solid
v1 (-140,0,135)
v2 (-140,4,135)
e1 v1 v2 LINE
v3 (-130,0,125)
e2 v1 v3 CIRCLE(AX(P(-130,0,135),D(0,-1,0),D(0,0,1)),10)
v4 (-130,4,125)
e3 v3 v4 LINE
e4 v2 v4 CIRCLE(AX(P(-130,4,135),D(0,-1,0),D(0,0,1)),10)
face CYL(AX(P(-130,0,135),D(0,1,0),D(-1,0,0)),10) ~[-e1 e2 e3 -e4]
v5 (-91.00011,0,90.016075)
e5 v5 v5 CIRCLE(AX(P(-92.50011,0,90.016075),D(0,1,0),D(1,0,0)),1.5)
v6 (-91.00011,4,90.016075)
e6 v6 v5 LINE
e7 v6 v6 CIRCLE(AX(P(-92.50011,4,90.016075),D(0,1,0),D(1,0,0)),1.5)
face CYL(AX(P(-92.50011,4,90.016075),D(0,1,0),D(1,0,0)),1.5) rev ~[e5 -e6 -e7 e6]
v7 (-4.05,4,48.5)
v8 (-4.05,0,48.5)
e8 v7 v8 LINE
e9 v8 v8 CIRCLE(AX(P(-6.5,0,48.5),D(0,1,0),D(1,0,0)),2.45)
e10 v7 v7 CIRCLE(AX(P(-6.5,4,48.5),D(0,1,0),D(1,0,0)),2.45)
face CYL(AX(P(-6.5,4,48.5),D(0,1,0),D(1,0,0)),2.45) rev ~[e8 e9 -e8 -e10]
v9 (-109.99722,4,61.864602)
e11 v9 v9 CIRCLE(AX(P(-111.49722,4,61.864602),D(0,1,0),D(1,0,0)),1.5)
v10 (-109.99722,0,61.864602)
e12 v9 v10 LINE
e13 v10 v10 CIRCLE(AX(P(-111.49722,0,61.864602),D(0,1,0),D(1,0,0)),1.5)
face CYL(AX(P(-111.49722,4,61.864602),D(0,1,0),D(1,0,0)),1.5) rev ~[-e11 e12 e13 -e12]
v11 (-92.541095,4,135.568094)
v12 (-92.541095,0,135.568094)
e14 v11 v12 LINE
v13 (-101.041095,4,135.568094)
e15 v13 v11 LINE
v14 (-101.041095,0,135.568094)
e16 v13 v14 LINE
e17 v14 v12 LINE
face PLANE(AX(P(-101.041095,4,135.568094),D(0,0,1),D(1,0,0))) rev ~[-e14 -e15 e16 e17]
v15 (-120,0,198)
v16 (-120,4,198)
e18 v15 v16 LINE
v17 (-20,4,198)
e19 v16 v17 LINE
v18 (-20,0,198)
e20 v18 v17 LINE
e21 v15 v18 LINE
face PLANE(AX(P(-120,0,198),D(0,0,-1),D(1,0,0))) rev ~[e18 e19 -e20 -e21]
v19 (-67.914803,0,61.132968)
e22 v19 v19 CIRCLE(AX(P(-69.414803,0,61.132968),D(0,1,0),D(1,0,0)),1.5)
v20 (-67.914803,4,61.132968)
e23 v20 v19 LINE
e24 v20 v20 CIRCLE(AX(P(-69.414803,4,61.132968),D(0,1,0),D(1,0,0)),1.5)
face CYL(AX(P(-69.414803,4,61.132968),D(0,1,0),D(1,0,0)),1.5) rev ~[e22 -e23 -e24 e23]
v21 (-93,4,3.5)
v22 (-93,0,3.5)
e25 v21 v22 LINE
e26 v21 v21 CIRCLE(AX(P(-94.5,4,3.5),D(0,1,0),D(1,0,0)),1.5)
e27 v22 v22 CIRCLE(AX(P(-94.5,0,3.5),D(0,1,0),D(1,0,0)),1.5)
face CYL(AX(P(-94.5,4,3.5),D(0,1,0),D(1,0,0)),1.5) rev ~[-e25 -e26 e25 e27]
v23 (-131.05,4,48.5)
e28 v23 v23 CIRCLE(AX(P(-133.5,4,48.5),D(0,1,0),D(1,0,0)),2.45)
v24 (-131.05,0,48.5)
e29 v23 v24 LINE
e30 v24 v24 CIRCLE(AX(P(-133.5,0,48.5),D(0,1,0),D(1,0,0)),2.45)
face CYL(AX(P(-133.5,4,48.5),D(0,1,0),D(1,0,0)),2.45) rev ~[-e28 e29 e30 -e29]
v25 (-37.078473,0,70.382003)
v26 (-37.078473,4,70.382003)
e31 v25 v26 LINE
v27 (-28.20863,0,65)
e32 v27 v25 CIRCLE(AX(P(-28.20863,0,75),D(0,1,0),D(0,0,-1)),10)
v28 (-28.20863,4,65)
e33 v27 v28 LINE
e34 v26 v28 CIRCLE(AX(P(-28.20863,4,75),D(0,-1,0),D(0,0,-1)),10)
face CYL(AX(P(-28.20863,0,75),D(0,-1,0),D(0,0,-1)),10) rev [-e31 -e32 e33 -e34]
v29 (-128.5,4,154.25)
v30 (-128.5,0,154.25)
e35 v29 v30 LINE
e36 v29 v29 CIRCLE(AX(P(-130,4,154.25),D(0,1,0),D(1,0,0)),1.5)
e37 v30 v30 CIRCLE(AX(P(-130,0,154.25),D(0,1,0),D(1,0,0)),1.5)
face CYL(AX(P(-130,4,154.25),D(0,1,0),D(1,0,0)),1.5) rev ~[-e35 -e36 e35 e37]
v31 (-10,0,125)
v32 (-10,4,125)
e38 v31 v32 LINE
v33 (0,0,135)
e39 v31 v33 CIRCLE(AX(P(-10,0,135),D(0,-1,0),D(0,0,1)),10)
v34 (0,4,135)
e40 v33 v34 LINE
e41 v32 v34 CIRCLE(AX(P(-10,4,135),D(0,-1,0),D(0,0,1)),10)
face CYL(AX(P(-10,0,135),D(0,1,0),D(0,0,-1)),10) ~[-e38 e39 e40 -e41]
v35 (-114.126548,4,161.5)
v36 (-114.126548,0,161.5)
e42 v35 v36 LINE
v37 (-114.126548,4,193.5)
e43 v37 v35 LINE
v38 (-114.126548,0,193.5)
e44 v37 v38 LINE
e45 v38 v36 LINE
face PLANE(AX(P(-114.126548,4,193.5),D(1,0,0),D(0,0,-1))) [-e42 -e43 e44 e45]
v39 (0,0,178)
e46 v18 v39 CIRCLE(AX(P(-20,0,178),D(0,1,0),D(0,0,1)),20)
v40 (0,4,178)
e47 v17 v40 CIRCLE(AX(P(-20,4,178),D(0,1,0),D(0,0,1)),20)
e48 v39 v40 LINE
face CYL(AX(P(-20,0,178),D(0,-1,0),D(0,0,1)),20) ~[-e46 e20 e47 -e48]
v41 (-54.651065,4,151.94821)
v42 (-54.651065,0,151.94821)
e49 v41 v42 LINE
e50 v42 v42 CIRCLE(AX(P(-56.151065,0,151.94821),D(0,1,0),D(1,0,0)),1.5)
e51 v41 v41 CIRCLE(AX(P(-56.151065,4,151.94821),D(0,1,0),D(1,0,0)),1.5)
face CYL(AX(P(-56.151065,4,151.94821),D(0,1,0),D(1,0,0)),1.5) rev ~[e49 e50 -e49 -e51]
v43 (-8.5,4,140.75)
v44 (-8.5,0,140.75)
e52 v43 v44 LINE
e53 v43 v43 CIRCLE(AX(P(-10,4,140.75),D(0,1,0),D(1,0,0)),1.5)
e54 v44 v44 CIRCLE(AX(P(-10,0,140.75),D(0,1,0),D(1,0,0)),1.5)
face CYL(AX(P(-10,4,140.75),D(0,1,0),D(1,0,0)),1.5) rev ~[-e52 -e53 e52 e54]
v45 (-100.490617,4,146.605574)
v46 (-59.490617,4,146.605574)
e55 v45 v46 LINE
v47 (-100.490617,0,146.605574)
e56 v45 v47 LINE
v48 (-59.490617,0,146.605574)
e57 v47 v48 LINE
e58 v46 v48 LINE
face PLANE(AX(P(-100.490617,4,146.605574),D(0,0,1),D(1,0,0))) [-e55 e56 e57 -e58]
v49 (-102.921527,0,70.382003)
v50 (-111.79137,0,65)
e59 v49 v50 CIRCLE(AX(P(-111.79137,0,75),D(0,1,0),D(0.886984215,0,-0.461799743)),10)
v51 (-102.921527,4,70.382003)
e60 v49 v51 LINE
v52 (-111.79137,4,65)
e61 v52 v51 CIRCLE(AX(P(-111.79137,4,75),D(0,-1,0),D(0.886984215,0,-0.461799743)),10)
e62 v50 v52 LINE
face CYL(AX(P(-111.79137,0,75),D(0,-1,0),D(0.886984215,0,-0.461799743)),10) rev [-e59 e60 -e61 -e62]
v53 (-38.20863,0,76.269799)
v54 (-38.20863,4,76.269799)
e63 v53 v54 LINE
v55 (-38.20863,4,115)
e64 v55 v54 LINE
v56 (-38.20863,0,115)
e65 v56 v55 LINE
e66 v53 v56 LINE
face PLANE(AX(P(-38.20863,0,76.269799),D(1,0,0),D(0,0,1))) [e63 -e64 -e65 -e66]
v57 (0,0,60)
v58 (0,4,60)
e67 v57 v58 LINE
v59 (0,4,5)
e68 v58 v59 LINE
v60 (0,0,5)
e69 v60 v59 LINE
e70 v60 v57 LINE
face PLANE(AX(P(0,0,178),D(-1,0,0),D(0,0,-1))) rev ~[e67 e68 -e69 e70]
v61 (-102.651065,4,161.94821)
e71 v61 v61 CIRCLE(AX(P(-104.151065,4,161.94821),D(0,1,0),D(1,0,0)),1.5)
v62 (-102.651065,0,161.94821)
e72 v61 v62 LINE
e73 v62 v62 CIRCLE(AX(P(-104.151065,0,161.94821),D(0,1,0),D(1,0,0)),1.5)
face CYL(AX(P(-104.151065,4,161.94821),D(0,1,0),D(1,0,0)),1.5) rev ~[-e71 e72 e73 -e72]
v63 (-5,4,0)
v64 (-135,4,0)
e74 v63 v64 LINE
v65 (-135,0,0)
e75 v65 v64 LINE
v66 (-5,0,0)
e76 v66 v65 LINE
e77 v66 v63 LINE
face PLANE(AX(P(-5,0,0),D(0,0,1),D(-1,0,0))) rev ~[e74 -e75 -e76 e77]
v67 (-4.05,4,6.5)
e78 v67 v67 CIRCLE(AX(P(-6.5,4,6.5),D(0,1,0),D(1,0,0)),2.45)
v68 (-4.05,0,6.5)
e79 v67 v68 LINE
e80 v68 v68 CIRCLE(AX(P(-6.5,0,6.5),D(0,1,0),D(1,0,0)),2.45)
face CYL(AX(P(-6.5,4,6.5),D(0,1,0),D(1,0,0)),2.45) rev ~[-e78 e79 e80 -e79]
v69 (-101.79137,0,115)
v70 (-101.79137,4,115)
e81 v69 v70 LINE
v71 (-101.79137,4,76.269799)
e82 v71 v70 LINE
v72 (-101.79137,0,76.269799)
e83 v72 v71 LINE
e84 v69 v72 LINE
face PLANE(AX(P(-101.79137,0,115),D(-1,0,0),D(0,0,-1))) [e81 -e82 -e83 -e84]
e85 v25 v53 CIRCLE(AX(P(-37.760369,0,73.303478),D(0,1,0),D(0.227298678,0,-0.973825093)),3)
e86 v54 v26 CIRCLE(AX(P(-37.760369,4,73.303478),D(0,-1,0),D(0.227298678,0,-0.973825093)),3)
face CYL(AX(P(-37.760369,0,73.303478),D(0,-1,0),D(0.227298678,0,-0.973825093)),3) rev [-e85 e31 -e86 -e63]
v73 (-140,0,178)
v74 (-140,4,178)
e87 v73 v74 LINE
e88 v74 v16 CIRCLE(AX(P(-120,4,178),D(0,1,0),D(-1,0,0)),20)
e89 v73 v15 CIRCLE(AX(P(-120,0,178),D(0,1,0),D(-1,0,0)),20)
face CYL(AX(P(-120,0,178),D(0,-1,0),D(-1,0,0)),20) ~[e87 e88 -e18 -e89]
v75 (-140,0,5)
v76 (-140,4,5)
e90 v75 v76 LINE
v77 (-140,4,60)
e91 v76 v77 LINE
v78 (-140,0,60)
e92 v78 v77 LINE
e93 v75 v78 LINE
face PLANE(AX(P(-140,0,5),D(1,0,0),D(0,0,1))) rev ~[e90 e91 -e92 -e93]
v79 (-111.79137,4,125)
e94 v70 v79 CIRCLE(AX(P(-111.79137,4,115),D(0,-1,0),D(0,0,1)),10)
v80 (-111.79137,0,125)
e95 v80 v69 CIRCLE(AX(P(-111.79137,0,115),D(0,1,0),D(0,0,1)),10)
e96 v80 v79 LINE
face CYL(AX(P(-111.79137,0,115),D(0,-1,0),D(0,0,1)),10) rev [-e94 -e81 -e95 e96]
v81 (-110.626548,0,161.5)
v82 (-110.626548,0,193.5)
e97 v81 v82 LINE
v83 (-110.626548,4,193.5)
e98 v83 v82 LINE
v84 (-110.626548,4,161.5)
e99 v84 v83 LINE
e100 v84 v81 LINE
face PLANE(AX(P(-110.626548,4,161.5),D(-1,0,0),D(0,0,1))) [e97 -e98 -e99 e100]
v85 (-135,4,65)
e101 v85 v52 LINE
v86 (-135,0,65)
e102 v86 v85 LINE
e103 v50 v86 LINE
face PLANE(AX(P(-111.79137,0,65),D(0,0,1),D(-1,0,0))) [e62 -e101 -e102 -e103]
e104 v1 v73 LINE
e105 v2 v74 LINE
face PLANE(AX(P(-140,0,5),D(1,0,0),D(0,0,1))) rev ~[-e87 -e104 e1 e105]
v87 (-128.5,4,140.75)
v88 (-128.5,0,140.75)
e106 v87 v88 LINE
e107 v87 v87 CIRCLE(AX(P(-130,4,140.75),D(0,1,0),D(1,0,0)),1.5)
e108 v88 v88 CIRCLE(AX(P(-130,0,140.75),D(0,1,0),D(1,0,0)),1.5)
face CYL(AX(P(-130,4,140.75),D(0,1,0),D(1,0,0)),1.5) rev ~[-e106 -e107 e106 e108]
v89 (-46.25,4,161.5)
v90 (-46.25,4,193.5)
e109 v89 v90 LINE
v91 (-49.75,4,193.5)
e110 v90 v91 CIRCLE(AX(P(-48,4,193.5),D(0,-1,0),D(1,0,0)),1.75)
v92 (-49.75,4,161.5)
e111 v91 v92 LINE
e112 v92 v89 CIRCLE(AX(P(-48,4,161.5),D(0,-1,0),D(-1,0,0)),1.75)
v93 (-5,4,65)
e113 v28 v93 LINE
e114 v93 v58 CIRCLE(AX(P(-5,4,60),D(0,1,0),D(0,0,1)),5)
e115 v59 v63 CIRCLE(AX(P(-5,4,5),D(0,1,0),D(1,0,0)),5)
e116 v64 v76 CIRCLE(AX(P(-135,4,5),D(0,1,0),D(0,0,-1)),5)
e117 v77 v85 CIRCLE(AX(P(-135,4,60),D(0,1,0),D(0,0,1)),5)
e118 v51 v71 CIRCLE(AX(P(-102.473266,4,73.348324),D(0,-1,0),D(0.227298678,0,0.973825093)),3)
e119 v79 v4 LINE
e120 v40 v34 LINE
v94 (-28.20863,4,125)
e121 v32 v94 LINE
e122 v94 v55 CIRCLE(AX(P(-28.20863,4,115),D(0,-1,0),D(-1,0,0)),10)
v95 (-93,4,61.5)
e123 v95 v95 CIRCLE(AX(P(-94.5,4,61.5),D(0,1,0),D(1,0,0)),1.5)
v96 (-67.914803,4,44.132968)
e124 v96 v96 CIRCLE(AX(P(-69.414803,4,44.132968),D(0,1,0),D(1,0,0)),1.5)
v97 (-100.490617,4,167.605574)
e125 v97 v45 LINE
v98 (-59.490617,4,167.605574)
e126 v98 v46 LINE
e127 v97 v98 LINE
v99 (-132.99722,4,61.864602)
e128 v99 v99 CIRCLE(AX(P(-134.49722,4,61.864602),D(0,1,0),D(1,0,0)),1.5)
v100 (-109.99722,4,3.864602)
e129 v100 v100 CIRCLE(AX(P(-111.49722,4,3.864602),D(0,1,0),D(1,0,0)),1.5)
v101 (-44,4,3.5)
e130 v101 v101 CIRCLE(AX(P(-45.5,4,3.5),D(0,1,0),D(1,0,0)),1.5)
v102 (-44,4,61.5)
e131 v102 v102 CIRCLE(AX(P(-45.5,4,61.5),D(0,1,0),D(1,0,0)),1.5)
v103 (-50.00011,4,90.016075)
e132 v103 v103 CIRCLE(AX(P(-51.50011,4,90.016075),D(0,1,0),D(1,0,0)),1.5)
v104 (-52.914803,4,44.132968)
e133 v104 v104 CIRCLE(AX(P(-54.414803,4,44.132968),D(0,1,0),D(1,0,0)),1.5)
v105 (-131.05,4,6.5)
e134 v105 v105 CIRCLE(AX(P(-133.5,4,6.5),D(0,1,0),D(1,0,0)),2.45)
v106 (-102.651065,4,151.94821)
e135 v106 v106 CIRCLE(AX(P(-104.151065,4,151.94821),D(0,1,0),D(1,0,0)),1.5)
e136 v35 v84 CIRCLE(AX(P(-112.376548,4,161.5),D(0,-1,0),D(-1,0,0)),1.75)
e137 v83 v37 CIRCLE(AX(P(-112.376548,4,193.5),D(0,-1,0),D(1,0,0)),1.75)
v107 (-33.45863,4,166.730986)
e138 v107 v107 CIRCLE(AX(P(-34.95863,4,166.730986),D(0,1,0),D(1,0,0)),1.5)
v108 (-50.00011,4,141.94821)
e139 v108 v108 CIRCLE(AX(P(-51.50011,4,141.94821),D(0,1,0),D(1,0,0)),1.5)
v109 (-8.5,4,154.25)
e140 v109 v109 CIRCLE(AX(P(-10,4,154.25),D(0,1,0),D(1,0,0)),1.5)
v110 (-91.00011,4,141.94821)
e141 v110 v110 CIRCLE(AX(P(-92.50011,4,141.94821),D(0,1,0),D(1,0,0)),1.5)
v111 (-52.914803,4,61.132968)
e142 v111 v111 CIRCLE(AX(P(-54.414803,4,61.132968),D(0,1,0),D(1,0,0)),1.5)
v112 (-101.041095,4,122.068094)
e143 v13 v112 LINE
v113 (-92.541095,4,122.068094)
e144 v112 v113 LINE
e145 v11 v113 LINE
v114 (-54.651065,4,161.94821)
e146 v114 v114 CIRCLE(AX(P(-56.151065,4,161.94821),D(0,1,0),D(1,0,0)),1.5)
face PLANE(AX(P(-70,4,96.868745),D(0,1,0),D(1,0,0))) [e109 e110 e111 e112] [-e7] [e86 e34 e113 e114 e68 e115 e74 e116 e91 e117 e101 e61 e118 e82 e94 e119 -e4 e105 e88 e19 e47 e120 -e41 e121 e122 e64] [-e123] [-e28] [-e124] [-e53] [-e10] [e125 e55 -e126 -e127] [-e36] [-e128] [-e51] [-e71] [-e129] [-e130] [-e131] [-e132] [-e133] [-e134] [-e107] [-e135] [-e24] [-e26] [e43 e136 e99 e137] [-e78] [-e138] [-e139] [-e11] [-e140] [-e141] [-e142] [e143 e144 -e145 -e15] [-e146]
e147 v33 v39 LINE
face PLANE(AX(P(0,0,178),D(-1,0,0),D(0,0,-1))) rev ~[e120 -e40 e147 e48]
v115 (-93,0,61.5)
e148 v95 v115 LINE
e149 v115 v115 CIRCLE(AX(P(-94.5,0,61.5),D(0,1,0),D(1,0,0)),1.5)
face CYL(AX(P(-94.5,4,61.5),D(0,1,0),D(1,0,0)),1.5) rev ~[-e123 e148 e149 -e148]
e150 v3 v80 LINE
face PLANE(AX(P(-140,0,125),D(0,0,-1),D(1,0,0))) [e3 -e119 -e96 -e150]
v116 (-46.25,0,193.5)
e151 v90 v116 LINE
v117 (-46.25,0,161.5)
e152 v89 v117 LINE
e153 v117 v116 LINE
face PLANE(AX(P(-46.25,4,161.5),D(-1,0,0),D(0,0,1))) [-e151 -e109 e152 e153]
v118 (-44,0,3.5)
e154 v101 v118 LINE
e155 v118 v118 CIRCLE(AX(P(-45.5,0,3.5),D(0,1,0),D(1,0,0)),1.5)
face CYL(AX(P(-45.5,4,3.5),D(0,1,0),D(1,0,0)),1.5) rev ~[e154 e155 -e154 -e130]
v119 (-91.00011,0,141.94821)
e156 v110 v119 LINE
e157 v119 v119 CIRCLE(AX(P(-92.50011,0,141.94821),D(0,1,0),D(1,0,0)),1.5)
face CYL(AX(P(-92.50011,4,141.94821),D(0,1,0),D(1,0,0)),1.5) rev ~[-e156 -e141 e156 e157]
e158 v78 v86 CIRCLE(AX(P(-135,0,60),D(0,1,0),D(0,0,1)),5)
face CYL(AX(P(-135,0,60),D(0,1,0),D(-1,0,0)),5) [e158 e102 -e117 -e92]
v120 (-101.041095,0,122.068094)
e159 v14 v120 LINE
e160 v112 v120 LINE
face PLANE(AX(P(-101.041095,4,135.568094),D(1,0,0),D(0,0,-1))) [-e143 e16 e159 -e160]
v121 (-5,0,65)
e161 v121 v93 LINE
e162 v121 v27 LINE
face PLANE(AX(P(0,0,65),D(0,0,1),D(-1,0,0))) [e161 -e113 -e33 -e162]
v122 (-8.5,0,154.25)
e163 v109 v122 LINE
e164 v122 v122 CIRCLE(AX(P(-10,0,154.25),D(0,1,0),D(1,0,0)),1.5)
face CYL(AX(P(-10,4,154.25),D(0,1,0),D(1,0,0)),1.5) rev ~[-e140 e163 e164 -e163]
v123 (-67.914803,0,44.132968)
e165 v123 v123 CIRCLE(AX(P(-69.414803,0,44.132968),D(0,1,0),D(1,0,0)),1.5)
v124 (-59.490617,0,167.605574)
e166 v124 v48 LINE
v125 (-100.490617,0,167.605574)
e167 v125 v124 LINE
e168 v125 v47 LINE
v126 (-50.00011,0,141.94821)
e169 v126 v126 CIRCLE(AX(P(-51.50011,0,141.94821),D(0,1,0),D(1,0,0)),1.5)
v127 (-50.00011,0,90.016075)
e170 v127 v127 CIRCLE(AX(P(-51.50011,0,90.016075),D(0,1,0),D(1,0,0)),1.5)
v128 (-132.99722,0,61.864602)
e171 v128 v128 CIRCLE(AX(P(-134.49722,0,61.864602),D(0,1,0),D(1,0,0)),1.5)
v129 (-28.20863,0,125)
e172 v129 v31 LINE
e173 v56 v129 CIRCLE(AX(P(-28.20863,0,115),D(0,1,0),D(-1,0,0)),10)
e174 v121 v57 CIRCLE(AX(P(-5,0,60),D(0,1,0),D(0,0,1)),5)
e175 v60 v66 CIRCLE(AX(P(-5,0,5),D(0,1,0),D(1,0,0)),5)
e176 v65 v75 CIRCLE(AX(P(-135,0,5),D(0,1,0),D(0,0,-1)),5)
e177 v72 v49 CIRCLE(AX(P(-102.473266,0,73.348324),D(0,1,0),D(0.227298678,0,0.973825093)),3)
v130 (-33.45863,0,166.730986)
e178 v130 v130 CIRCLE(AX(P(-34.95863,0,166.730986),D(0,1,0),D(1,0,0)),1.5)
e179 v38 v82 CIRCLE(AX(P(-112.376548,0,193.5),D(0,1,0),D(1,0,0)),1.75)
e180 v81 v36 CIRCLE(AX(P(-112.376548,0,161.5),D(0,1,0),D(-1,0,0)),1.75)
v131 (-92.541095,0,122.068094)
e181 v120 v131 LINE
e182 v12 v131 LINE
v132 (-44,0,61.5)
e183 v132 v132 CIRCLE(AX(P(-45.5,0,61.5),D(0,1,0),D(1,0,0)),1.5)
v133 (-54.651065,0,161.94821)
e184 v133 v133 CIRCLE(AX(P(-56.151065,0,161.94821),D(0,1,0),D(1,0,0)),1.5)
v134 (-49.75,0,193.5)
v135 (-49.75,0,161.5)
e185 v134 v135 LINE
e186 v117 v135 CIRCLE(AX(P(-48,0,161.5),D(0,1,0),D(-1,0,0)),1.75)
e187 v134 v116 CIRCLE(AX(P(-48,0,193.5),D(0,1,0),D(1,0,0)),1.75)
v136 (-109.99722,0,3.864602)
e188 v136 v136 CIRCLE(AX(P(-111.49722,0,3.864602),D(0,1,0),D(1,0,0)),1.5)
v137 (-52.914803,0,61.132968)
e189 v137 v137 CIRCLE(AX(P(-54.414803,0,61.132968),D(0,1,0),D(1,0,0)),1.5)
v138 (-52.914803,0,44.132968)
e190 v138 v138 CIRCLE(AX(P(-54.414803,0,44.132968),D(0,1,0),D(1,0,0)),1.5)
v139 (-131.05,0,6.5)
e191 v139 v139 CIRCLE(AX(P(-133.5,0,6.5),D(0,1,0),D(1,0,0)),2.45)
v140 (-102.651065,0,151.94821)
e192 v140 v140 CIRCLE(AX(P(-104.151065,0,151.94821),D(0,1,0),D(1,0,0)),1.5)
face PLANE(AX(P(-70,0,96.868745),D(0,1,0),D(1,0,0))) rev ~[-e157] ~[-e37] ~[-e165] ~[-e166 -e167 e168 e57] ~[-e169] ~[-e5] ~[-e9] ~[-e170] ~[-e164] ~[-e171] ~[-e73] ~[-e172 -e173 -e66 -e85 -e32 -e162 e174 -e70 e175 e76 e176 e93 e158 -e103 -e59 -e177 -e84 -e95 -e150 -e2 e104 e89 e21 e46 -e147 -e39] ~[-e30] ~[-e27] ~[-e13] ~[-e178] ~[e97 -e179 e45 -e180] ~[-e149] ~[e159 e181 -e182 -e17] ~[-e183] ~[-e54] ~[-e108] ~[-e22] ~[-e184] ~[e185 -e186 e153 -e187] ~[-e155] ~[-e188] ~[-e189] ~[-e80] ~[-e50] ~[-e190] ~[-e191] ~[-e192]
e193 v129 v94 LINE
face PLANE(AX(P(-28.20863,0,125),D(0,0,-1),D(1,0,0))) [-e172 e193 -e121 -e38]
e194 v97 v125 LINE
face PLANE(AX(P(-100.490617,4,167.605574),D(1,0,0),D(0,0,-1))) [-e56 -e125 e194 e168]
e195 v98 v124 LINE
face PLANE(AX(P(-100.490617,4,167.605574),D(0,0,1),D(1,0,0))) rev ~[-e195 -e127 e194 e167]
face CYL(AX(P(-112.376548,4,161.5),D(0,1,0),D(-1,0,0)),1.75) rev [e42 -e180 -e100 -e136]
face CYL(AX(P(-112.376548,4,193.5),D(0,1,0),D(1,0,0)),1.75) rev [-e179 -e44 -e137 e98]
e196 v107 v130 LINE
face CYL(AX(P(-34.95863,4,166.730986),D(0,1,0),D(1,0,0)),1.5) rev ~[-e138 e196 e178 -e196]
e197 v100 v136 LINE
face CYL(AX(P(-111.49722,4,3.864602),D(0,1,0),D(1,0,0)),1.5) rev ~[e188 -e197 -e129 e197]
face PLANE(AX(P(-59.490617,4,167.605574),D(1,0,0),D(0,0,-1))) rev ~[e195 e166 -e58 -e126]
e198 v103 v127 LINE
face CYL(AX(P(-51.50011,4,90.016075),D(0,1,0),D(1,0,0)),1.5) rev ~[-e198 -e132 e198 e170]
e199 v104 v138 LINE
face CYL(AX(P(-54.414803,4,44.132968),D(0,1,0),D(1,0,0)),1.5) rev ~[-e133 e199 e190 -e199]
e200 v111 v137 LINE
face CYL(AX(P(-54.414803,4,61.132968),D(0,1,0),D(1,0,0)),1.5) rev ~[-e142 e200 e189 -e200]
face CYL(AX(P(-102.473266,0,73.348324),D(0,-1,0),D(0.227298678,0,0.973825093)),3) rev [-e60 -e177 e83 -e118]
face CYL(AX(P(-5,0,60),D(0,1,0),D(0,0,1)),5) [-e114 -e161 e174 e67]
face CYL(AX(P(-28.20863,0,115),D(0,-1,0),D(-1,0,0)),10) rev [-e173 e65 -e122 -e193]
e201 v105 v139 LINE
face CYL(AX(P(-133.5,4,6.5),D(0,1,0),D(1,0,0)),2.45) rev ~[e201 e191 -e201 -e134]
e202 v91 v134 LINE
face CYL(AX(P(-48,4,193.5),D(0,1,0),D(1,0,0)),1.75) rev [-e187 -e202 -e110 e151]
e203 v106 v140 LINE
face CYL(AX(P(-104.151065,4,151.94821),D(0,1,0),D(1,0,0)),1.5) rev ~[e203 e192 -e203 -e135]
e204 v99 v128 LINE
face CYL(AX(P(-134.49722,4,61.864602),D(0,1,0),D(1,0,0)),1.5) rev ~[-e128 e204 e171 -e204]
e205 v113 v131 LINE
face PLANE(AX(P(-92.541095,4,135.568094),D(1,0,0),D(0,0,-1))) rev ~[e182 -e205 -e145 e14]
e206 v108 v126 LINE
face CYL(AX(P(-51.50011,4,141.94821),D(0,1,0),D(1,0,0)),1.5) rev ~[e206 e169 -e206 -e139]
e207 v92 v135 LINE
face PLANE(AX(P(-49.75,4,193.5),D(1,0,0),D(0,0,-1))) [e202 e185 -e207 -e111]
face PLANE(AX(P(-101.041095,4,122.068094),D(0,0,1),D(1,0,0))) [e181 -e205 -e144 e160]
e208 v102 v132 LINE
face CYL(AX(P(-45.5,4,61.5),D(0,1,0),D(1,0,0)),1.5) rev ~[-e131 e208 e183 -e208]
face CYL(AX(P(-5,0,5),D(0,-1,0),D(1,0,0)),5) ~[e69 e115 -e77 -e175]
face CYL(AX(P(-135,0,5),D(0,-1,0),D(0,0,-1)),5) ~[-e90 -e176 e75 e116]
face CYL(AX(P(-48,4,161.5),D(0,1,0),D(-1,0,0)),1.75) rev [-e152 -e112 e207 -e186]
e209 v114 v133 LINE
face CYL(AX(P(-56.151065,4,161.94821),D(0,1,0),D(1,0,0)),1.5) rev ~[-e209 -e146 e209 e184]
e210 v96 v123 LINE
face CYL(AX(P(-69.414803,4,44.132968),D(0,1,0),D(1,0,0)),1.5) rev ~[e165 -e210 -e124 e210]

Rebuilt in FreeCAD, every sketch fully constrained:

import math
import FreeCAD as App
import Part
import Sketcher


def edges_at(feature, points):
    """Names of the edges that pass closest to the given points."""
    edges = feature.Shape.Edges
    near = lambda p: min(range(len(edges)), key=lambda i: edges[i].distToShape(Part.Vertex(*p))[0])
    return sorted({f"Edge{near(p) + 1}" for p in points})


def add_polygon(sketch, points):
    """Adds a closed chain of lines whose ends are joined by coincident constraints."""
    first, n = sketch.GeometryCount, len(points)
    for a, b in zip(points, points[1:] + points[:1]):
        sketch.addGeometry(Part.LineSegment(App.Vector(*a, 0), App.Vector(*b, 0)), False)
    for i in range(n):
        sketch.addConstraint(Sketcher.Constraint("Coincident", first + i, 2, first + (i + 1) % n, 1))

doc = App.newDocument("Part")
body = doc.addObject("PartDesign::Body", "Body")

# Sketch on XZ plane
sketch1 = body.newObject("Sketcher::SketchObject", "Sketch")
sketch1.AttachmentSupport = (doc.getObject("XZ_Plane"), [""])
sketch1.MapMode = "FlatFace"
sketch1.addGeometry(Part.ArcOfCircle(Part.Circle(App.Vector(-135, 5, 0), App.Vector(0, 0, 1), 5), math.radians(180), math.radians(270)), False)
sketch1.addGeometry(Part.LineSegment(App.Vector(-140, 5, 0), App.Vector(-140, 178, 0)), False)
sketch1.addGeometry(Part.ArcOfCircle(Part.Circle(App.Vector(-120, 178, 0), App.Vector(0, 0, 1), 20), math.radians(90), math.radians(180)), False)
sketch1.addGeometry(Part.LineSegment(App.Vector(-120, 198, 0), App.Vector(-20, 198, 0)), False)
sketch1.addGeometry(Part.ArcOfCircle(Part.Circle(App.Vector(-20, 178, 0), App.Vector(0, 0, 1), 20), math.radians(0), math.radians(90)), False)
sketch1.addGeometry(Part.LineSegment(App.Vector(0, 178, 0), App.Vector(0, 5, 0)), False)
sketch1.addGeometry(Part.ArcOfCircle(Part.Circle(App.Vector(-5, 5, 0), App.Vector(0, 0, 1), 5), math.radians(-90), math.radians(0)), False)
sketch1.addGeometry(Part.LineSegment(App.Vector(-5, 0, 0), App.Vector(-135, 0, 0)), False)
sketch1.addConstraint(Sketcher.Constraint("Tangent", 0, 1, 1, 1))
sketch1.addConstraint(Sketcher.Constraint("Tangent", 1, 2, 2, 2))
sketch1.addConstraint(Sketcher.Constraint("Tangent", 2, 1, 3, 1))
sketch1.addConstraint(Sketcher.Constraint("Tangent", 3, 2, 4, 2))
sketch1.addConstraint(Sketcher.Constraint("Tangent", 4, 1, 5, 1))
sketch1.addConstraint(Sketcher.Constraint("Tangent", 5, 2, 6, 2))
sketch1.addConstraint(Sketcher.Constraint("Tangent", 6, 1, 7, 1))
sketch1.addConstraint(Sketcher.Constraint("Tangent", 7, 2, 0, 2))
sketch1.addConstraint(Sketcher.Constraint("Vertical", 1))
sketch1.addConstraint(Sketcher.Constraint("Horizontal", 3))
sketch1.addConstraint(Sketcher.Constraint("Vertical", 5))
sketch1.addConstraint(Sketcher.Constraint("Horizontal", 7))
sketch1.addConstraint(Sketcher.Constraint("Equal", 2, 4))
sketch1.addConstraint(Sketcher.Constraint("Equal", 0, 6))
sketch1.addConstraint(Sketcher.Constraint("PointOnObject", 4, 1, -2))
sketch1.addConstraint(Sketcher.Constraint("PointOnObject", 6, 1, -1))
sketch1.addConstraint(Sketcher.Constraint("Radius", 0, 5.0))
sketch1.addConstraint(Sketcher.Constraint("Radius", 2, 20.0))
sketch1.addConstraint(Sketcher.Constraint("DistanceX", 3, 1, 3, 2, 100.0))
sketch1.addConstraint(Sketcher.Constraint("DistanceY", 1, 1, 1, 2, 173.0))
pad1 = body.newObject("PartDesign::Pad", "Pad")
pad1.Profile = sketch1
pad1.Length = 4
pad1.Reversed = True

# Sketch on XZ plane
sketch2 = body.newObject("Sketcher::SketchObject", "Sketch001")
sketch2.AttachmentSupport = (doc.getObject("XZ_Plane"), [""])
sketch2.MapMode = "FlatFace"
sketch2.AttachmentOffset = App.Placement(App.Vector(0, 0, -4), App.Rotation())
sketch2.addGeometry(Part.Circle(App.Vector(-6.5, 6.5, 0), App.Vector(0, 0, 1), 2.45), False)  # 0
sketch2.addGeometry(Part.Circle(App.Vector(-6.5, 48.5, 0), App.Vector(0, 0, 1), 2.45), False)  # 1
sketch2.addGeometry(Part.Circle(App.Vector(-133.5, 48.5, 0), App.Vector(0, 0, 1), 2.45), False)  # 2
sketch2.addGeometry(Part.Circle(App.Vector(-133.5, 6.5, 0), App.Vector(0, 0, 1), 2.45), False)  # 3
sketch2.addGeometry(Part.Circle(App.Vector(-130, 140.75, 0), App.Vector(0, 0, 1), 1.5), False)  # 4
sketch2.addGeometry(Part.Circle(App.Vector(-130, 154.25, 0), App.Vector(0, 0, 1), 1.5), False)  # 5
sketch2.addGeometry(Part.Circle(App.Vector(-10, 154.25, 0), App.Vector(0, 0, 1), 1.5), False)  # 6
sketch2.addGeometry(Part.Circle(App.Vector(-10, 140.75, 0), App.Vector(0, 0, 1), 1.5), False)  # 7
sketch2.addGeometry(Part.Circle(App.Vector(-69.414803, 44.132968, 0), App.Vector(0, 0, 1), 1.5), False)  # 8
sketch2.addGeometry(Part.Circle(App.Vector(-104.151065, 151.94821, 0), App.Vector(0, 0, 1), 1.5), False)  # 9
sketch2.addGeometry(Part.Circle(App.Vector(-104.151065, 161.94821, 0), App.Vector(0, 0, 1), 1.5), False)  # 10
sketch2.addGeometry(Part.Circle(App.Vector(-56.151065, 161.94821, 0), App.Vector(0, 0, 1), 1.5), False)  # 11
sketch2.addGeometry(Part.Circle(App.Vector(-54.414803, 44.132968, 0), App.Vector(0, 0, 1), 1.5), False)  # 12
sketch2.addGeometry(Part.Circle(App.Vector(-54.414803, 61.132968, 0), App.Vector(0, 0, 1), 1.5), False)  # 13
sketch2.addGeometry(Part.Circle(App.Vector(-69.414803, 61.132968, 0), App.Vector(0, 0, 1), 1.5), False)  # 14
sketch2.addGeometry(Part.Circle(App.Vector(-51.50011, 90.016075, 0), App.Vector(0, 0, 1), 1.5), False)  # 15
sketch2.addGeometry(Part.Circle(App.Vector(-51.50011, 141.94821, 0), App.Vector(0, 0, 1), 1.5), False)  # 16
sketch2.addGeometry(Part.Circle(App.Vector(-56.151065, 151.94821, 0), App.Vector(0, 0, 1), 1.5), False)  # 17
sketch2.addGeometry(Part.Circle(App.Vector(-92.50011, 141.94821, 0), App.Vector(0, 0, 1), 1.5), False)  # 18
sketch2.addGeometry(Part.Circle(App.Vector(-92.50011, 90.016075, 0), App.Vector(0, 0, 1), 1.5), False)  # 19
sketch2.addGeometry(Part.Circle(App.Vector(-45.5, 61.5, 0), App.Vector(0, 0, 1), 1.5), False)  # 20
sketch2.addGeometry(Part.Circle(App.Vector(-45.5, 3.5, 0), App.Vector(0, 0, 1), 1.5), False)  # 21
sketch2.addGeometry(Part.Circle(App.Vector(-94.5, 3.5, 0), App.Vector(0, 0, 1), 1.5), False)  # 22
sketch2.addGeometry(Part.Circle(App.Vector(-94.5, 61.5, 0), App.Vector(0, 0, 1), 1.5), False)  # 23
sketch2.addGeometry(Part.Circle(App.Vector(-111.49722, 3.864602, 0), App.Vector(0, 0, 1), 1.5), False)  # 24
sketch2.addGeometry(Part.Circle(App.Vector(-111.49722, 61.864602, 0), App.Vector(0, 0, 1), 1.5), False)  # 25
sketch2.addGeometry(Part.Circle(App.Vector(-134.49722, 61.864602, 0), App.Vector(0, 0, 1), 1.5), False)  # 26
sketch2.addGeometry(Part.Circle(App.Vector(-34.95863, 166.730986, 0), App.Vector(0, 0, 1), 1.5), False)  # 27
sketch2.addGeometry(Part.LineSegment(App.Vector(-110.626548, 193.5, 0), App.Vector(-110.626548, 161.5, 0)), False)  # 28
sketch2.addGeometry(Part.ArcOfCircle(Part.Circle(App.Vector(-112.376548, 161.5, 0), App.Vector(0, 0, 1), 1.75), math.radians(180), math.radians(360)), False)  # 29
sketch2.addGeometry(Part.LineSegment(App.Vector(-114.126548, 161.5, 0), App.Vector(-114.126548, 193.5, 0)), False)  # 30
sketch2.addGeometry(Part.ArcOfCircle(Part.Circle(App.Vector(-112.376548, 193.5, 0), App.Vector(0, 0, 1), 1.75), math.radians(0), math.radians(180)), False)  # 31
add_polygon(sketch2, [(-100.490617, 146.605574), (-100.490617, 167.605574), (-59.490617, 167.605574), (-59.490617, 146.605574)])  # lines 32-35
add_polygon(sketch2, [(-101.041095, 122.068094), (-101.041095, 135.568094), (-92.541095, 135.568094), (-92.541095, 122.068094)])  # lines 36-39
sketch2.addGeometry(Part.LineSegment(App.Vector(-46.25, 193.5, 0), App.Vector(-46.25, 161.5, 0)), False)  # 40
sketch2.addGeometry(Part.ArcOfCircle(Part.Circle(App.Vector(-48, 161.5, 0), App.Vector(0, 0, 1), 1.75), math.radians(180), math.radians(360)), False)  # 41
sketch2.addGeometry(Part.LineSegment(App.Vector(-49.75, 161.5, 0), App.Vector(-49.75, 193.5, 0)), False)  # 42
sketch2.addGeometry(Part.ArcOfCircle(Part.Circle(App.Vector(-48, 193.5, 0), App.Vector(0, 0, 1), 1.75), math.radians(0), math.radians(180)), False)  # 43
sketch2.addConstraint(Sketcher.Constraint("Tangent", 28, 2, 29, 2))
sketch2.addConstraint(Sketcher.Constraint("Tangent", 29, 1, 30, 1))
sketch2.addConstraint(Sketcher.Constraint("Tangent", 30, 2, 31, 2))
sketch2.addConstraint(Sketcher.Constraint("Tangent", 31, 1, 28, 1))
sketch2.addConstraint(Sketcher.Constraint("Tangent", 40, 2, 41, 2))
sketch2.addConstraint(Sketcher.Constraint("Tangent", 41, 1, 42, 1))
sketch2.addConstraint(Sketcher.Constraint("Tangent", 42, 2, 43, 2))
sketch2.addConstraint(Sketcher.Constraint("Tangent", 43, 1, 40, 1))
sketch2.addConstraint(Sketcher.Constraint("Vertical", 28))
sketch2.addConstraint(Sketcher.Constraint("Vertical", 30))
sketch2.addConstraint(Sketcher.Constraint("Vertical", 32))
sketch2.addConstraint(Sketcher.Constraint("Horizontal", 33))
sketch2.addConstraint(Sketcher.Constraint("Vertical", 34))
sketch2.addConstraint(Sketcher.Constraint("Horizontal", 35))
sketch2.addConstraint(Sketcher.Constraint("Vertical", 36))
sketch2.addConstraint(Sketcher.Constraint("Horizontal", 37))
sketch2.addConstraint(Sketcher.Constraint("Vertical", 38))
sketch2.addConstraint(Sketcher.Constraint("Horizontal", 39))
sketch2.addConstraint(Sketcher.Constraint("Vertical", 40))
sketch2.addConstraint(Sketcher.Constraint("Vertical", 42))
sketch2.addConstraint(Sketcher.Constraint("Equal", 0, 1))
sketch2.addConstraint(Sketcher.Constraint("Equal", 1, 2))
sketch2.addConstraint(Sketcher.Constraint("Equal", 2, 3))
sketch2.addConstraint(Sketcher.Constraint("Equal", 4, 5))
sketch2.addConstraint(Sketcher.Constraint("Equal", 5, 6))
sketch2.addConstraint(Sketcher.Constraint("Equal", 6, 7))
sketch2.addConstraint(Sketcher.Constraint("Equal", 7, 8))
sketch2.addConstraint(Sketcher.Constraint("Equal", 8, 9))
sketch2.addConstraint(Sketcher.Constraint("Equal", 9, 10))
sketch2.addConstraint(Sketcher.Constraint("Equal", 10, 11))
sketch2.addConstraint(Sketcher.Constraint("Equal", 11, 12))
sketch2.addConstraint(Sketcher.Constraint("Equal", 12, 13))
sketch2.addConstraint(Sketcher.Constraint("Equal", 13, 14))
sketch2.addConstraint(Sketcher.Constraint("Equal", 14, 15))
sketch2.addConstraint(Sketcher.Constraint("Equal", 15, 16))
sketch2.addConstraint(Sketcher.Constraint("Equal", 16, 17))
sketch2.addConstraint(Sketcher.Constraint("Equal", 17, 18))
sketch2.addConstraint(Sketcher.Constraint("Equal", 18, 19))
sketch2.addConstraint(Sketcher.Constraint("Equal", 19, 20))
sketch2.addConstraint(Sketcher.Constraint("Equal", 20, 21))
sketch2.addConstraint(Sketcher.Constraint("Equal", 21, 22))
sketch2.addConstraint(Sketcher.Constraint("Equal", 22, 23))
sketch2.addConstraint(Sketcher.Constraint("Equal", 23, 24))
sketch2.addConstraint(Sketcher.Constraint("Equal", 24, 25))
sketch2.addConstraint(Sketcher.Constraint("Equal", 25, 26))
sketch2.addConstraint(Sketcher.Constraint("Equal", 26, 27))
sketch2.addConstraint(Sketcher.Constraint("Equal", 31, 41))
sketch2.addConstraint(Sketcher.Constraint("Horizontal", 1, 3, 2, 3))
sketch2.addConstraint(Sketcher.Constraint("Horizontal", 0, 3, 3, 3))
sketch2.addConstraint(Sketcher.Constraint("Horizontal", 5, 3, 6, 3))
sketch2.addConstraint(Sketcher.Constraint("Horizontal", 4, 3, 7, 3))
sketch2.addConstraint(Sketcher.Constraint("Horizontal", 10, 3, 11, 3))
sketch2.addConstraint(Sketcher.Constraint("Horizontal", 8, 3, 12, 3))
sketch2.addConstraint(Sketcher.Constraint("Horizontal", 13, 3, 14, 3))
sketch2.addConstraint(Sketcher.Constraint("Horizontal", 9, 3, 17, 3))
sketch2.addConstraint(Sketcher.Constraint("Horizontal", 16, 3, 18, 3))
sketch2.addConstraint(Sketcher.Constraint("Horizontal", 15, 3, 19, 3))
sketch2.addConstraint(Sketcher.Constraint("Horizontal", 21, 3, 22, 3))
sketch2.addConstraint(Sketcher.Constraint("Horizontal", 20, 3, 23, 3))
sketch2.addConstraint(Sketcher.Constraint("Horizontal", 25, 3, 26, 3))
sketch2.addConstraint(Sketcher.Constraint("Horizontal", 29, 3, 41, 3))
sketch2.addConstraint(Sketcher.Constraint("Horizontal", 31, 3, 43, 3))
sketch2.addConstraint(Sketcher.Constraint("Vertical", 0, 3, 1, 3))
sketch2.addConstraint(Sketcher.Constraint("Vertical", 2, 3, 3, 3))
sketch2.addConstraint(Sketcher.Constraint("Vertical", 4, 3, 5, 3))
sketch2.addConstraint(Sketcher.Constraint("Vertical", 6, 3, 7, 3))
sketch2.addConstraint(Sketcher.Constraint("Vertical", 9, 3, 10, 3))
sketch2.addConstraint(Sketcher.Constraint("Vertical", 12, 3, 13, 3))
sketch2.addConstraint(Sketcher.Constraint("Vertical", 8, 3, 14, 3))
sketch2.addConstraint(Sketcher.Constraint("Vertical", 15, 3, 16, 3))
sketch2.addConstraint(Sketcher.Constraint("Vertical", 11, 3, 17, 3))
sketch2.addConstraint(Sketcher.Constraint("Vertical", 18, 3, 19, 3))
sketch2.addConstraint(Sketcher.Constraint("Vertical", 20, 3, 21, 3))
sketch2.addConstraint(Sketcher.Constraint("Vertical", 22, 3, 23, 3))
sketch2.addConstraint(Sketcher.Constraint("Vertical", 24, 3, 25, 3))
sketch2.addConstraint(Sketcher.Constraint("Diameter", 4, 3.0))
sketch2.addConstraint(Sketcher.Constraint("Diameter", 0, 4.9))
sketch2.addConstraint(Sketcher.Constraint("DistanceX", 33, 1, 33, 2, 41.0))
sketch2.addConstraint(Sketcher.Constraint("DistanceY", 28, 2, 28, 1, 32.0))
sketch2.addConstraint(Sketcher.Constraint("DistanceY", 32, 1, 32, 2, 21.0))
sketch2.addConstraint(Sketcher.Constraint("Radius", 29, 1.75))
sketch2.addConstraint(Sketcher.Constraint("DistanceX", 37, 1, 37, 2, 8.5))
sketch2.addConstraint(Sketcher.Constraint("DistanceY", 36, 1, 36, 2, 13.5))
sketch2.addConstraint(Sketcher.Constraint("DistanceX", 4, 3, -1, 1, 130.0))
sketch2.addConstraint(Sketcher.Constraint("DistanceX", 6, 3, -1, 1, 10.0))
sketch2.addConstraint(Sketcher.Constraint("DistanceX", 41, 3, -1, 1, 48.0))
sketch2.addConstraint(Sketcher.Constraint("DistanceY", 0, 3, 1, 3, 42.0))
sketch2.addConstraint(Sketcher.Constraint("DistanceX", 2, 3, 1, 3, 127.0))
sketch2.addConstraint(Sketcher.Constraint("DistanceY", 9, 3, 10, 3, 10.0))
sketch2.addConstraint(Sketcher.Constraint("DistanceX", 10, 3, 11, 3, 48.0))
sketch2.addConstraint(Sketcher.Constraint("DistanceX", 8, 3, 12, 3, 15.0))
sketch2.addConstraint(Sketcher.Constraint("DistanceY", 12, 3, 13, 3, 17.0))
sketch2.addConstraint(Sketcher.Constraint("DistanceY", 16, 3, 11, 3, 20.0))
sketch2.addConstraint(Sketcher.Constraint("DistanceX", 19, 3, 15, 3, 41.0))
sketch2.addConstraint(Sketcher.Constraint("DistanceX", 21, 3, 0, 3, 39.0))
sketch2.addConstraint(Sketcher.Constraint("DistanceY", 21, 3, 0, 3, 3.0))
sketch2.addConstraint(Sketcher.Constraint("DistanceY", 21, 3, 20, 3, 58.0))
sketch2.addConstraint(Sketcher.Constraint("DistanceX", 3, 3, 22, 3, 39.0))
sketch2.addConstraint(Sketcher.Constraint("DistanceX", 26, 3, 25, 3, 23.0))
sketch2.addConstraint(Sketcher.Constraint("DistanceX", 0, 3, -1, 1, 6.5))
sketch2.addConstraint(Sketcher.Constraint("DistanceY", -1, 1, 0, 3, 6.5))
sketch2.addConstraint(Sketcher.Constraint("DistanceY", -1, 1, 29, 3, 161.5))
sketch2.addConstraint(Sketcher.Constraint("DistanceY", 4, 3, 5, 3, 13.5))
sketch2.addConstraint(Sketcher.Constraint("DistanceY", -1, 1, 4, 3, 140.75))
sketch2.addConstraint(Sketcher.Constraint("DistanceY", -1, 1, 9, 3, 151.94821))
sketch2.addConstraint(Sketcher.Constraint("DistanceX", 15, 3, -1, 1, 51.50011))
sketch2.addConstraint(Sketcher.Constraint("DistanceX", 24, 3, -1, 1, 111.49722))
sketch2.addConstraint(Sketcher.Constraint("DistanceX", 27, 3, -1, 1, 34.95863))
sketch2.addConstraint(Sketcher.Constraint("DistanceX", 10, 3, 32, 2, 3.660448))
sketch2.addConstraint(Sketcher.Constraint("DistanceX", 28, 2, 32, 2, 10.135931))
sketch2.addConstraint(Sketcher.Constraint("DistanceY", 27, 3, 33, 2, 0.874588))
sketch2.addConstraint(Sketcher.Constraint("DistanceY", 36, 2, 35, 2, 11.03748))
sketch2.addConstraint(Sketcher.Constraint("DistanceX", 9, 3, 36, 2, 3.10997))
sketch2.addConstraint(Sketcher.Constraint("DistanceY", 19, 3, 38, 2, 32.05202))
sketch2.addConstraint(Sketcher.Constraint("DistanceX", 8, 3, -1, 1, 69.414803))
sketch2.addConstraint(Sketcher.Constraint("DistanceY", -1, 1, 8, 3, 44.132968))
sketch2.addConstraint(Sketcher.Constraint("DistanceX", 9, 3, -1, 1, 104.151065))
sketch2.addConstraint(Sketcher.Constraint("DistanceY", -1, 1, 15, 3, 90.016075))
sketch2.addConstraint(Sketcher.Constraint("DistanceY", -1, 1, 24, 3, 3.864602))
sketch2.addConstraint(Sketcher.Constraint("DistanceY", -1, 1, 25, 3, 61.864602))
pocket1 = body.newObject("PartDesign::Pocket", "Pocket")
pocket1.Profile = sketch2
pocket1.Type = "ThroughAll"
pocket1.Midplane = True

# Sketch on XZ plane
sketch3 = body.newObject("Sketcher::SketchObject", "Sketch002")
sketch3.AttachmentSupport = (doc.getObject("XZ_Plane"), [""])
sketch3.MapMode = "FlatFace"
sketch3.addGeometry(Part.LineSegment(App.Vector(-28.20863, 65, 0), App.Vector(0, 65, 0)), False)
sketch3.addGeometry(Part.LineSegment(App.Vector(0, 65, 0), App.Vector(0, 125, 0)), False)
sketch3.addGeometry(Part.LineSegment(App.Vector(0, 125, 0), App.Vector(-28.20863, 125, 0)), False)
sketch3.addGeometry(Part.ArcOfCircle(Part.Circle(App.Vector(-28.20863, 115, 0), App.Vector(0, 0, 1), 10), math.radians(90), math.radians(180)), False)
sketch3.addGeometry(Part.LineSegment(App.Vector(-38.20863, 115, 0), App.Vector(-38.20863, 76.269799, 0)), False)
sketch3.addGeometry(Part.ArcOfCircle(Part.Circle(App.Vector(-37.760369, 73.303478, 0), App.Vector(0, 0, 1), 3), math.radians(98.593351), math.radians(283.138086)), False)
sketch3.addGeometry(Part.ArcOfCircle(Part.Circle(App.Vector(-28.20863, 75, 0), App.Vector(0, 0, 1), 10), math.radians(-152.496697), math.radians(-90)), False)
sketch3.addGeometry(Part.LineSegment(App.Vector(-140, 125, 0), App.Vector(-140, 65, 0)), False)
sketch3.addGeometry(Part.LineSegment(App.Vector(-140, 65, 0), App.Vector(-111.79137, 65, 0)), False)
sketch3.addGeometry(Part.ArcOfCircle(Part.Circle(App.Vector(-111.79137, 75, 0), App.Vector(0, 0, 1), 10), math.radians(-90), math.radians(-27.503303)), False)
sketch3.addGeometry(Part.ArcOfCircle(Part.Circle(App.Vector(-102.473266, 73.348324, 0), App.Vector(0, 0, 1), 3), math.radians(-98.593351), math.radians(76.861914)), False)
sketch3.addGeometry(Part.LineSegment(App.Vector(-101.79137, 76.269799, 0), App.Vector(-101.79137, 115, 0)), False)
sketch3.addGeometry(Part.ArcOfCircle(Part.Circle(App.Vector(-111.79137, 115, 0), App.Vector(0, 0, 1), 10), math.radians(0), math.radians(90)), False)
sketch3.addGeometry(Part.LineSegment(App.Vector(-111.79137, 125, 0), App.Vector(-140, 125, 0)), False)
sketch3.addConstraint(Sketcher.Constraint("Coincident", 0, 2, 1, 1))
sketch3.addConstraint(Sketcher.Constraint("Coincident", 1, 2, 2, 1))
sketch3.addConstraint(Sketcher.Constraint("Tangent", 2, 2, 3, 1))
sketch3.addConstraint(Sketcher.Constraint("Tangent", 3, 2, 4, 1))
sketch3.addConstraint(Sketcher.Constraint("Coincident", 4, 2, 5, 1))
sketch3.addConstraint(Sketcher.Constraint("Coincident", 5, 2, 6, 1))
sketch3.addConstraint(Sketcher.Constraint("Tangent", 6, 2, 0, 1))
sketch3.addConstraint(Sketcher.Constraint("Coincident", 7, 2, 8, 1))
sketch3.addConstraint(Sketcher.Constraint("Tangent", 8, 2, 9, 1))
sketch3.addConstraint(Sketcher.Constraint("Coincident", 9, 2, 10, 1))
sketch3.addConstraint(Sketcher.Constraint("Coincident", 10, 2, 11, 1))
sketch3.addConstraint(Sketcher.Constraint("Tangent", 11, 2, 12, 1))
sketch3.addConstraint(Sketcher.Constraint("Tangent", 12, 2, 13, 1))
sketch3.addConstraint(Sketcher.Constraint("Coincident", 13, 2, 7, 1))
sketch3.addConstraint(Sketcher.Constraint("Horizontal", 0))
sketch3.addConstraint(Sketcher.Constraint("Vertical", 1))
sketch3.addConstraint(Sketcher.Constraint("Horizontal", 2))
sketch3.addConstraint(Sketcher.Constraint("Vertical", 4))
sketch3.addConstraint(Sketcher.Constraint("Vertical", 7))
sketch3.addConstraint(Sketcher.Constraint("Horizontal", 8))
sketch3.addConstraint(Sketcher.Constraint("Vertical", 11))
sketch3.addConstraint(Sketcher.Constraint("Horizontal", 13))
sketch3.addConstraint(Sketcher.Constraint("Equal", 3, 6))
sketch3.addConstraint(Sketcher.Constraint("Equal", 6, 9))
sketch3.addConstraint(Sketcher.Constraint("Equal", 5, 10))
sketch3.addConstraint(Sketcher.Constraint("Equal", 9, 12))
sketch3.addConstraint(Sketcher.Constraint("PointOnObject", 0, 2, -2))
sketch3.addConstraint(Sketcher.Constraint("Horizontal", 6, 3, 9, 3))
sketch3.addConstraint(Sketcher.Constraint("Horizontal", 3, 3, 12, 3))
sketch3.addConstraint(Sketcher.Constraint("Horizontal", 5, 2, 9, 2))
sketch3.addConstraint(Sketcher.Constraint("Horizontal", 4, 2, 10, 2))
sketch3.addConstraint(Sketcher.Constraint("Vertical", 3, 3, 6, 3))
sketch3.addConstraint(Sketcher.Constraint("Vertical", 9, 3, 12, 3))
sketch3.addConstraint(Sketcher.Constraint("Equal", 2, 8))
sketch3.addConstraint(Sketcher.Constraint("Radius", 3, 10.0))
sketch3.addConstraint(Sketcher.Constraint("Radius", 5, 3.0))
sketch3.addConstraint(Sketcher.Constraint("DistanceY", 1, 1, 1, 2, 60.0))
sketch3.addConstraint(Sketcher.Constraint("DistanceY", -1, 1, 3, 3, 115.0))
sketch3.addConstraint(Sketcher.Constraint("DistanceX", 7, 2, -1, 1, 140.0))
sketch3.addConstraint(Sketcher.Constraint("DistanceY", 4, 2, 4, 1, 38.730201))
sketch3.addConstraint(Sketcher.Constraint("DistanceX", 9, 3, 5, 3, 74.031001))
sketch3.addConstraint(Sketcher.Constraint("DistanceX", 0, 1, 0, 2, 28.20863))
pocket2 = body.newObject("PartDesign::Pocket", "Pocket001")
pocket2.Profile = sketch3
pocket2.Type = "ThroughAll"
pocket2.Midplane = True
doc.recompute()

fillet = body.newObject("PartDesign::Fillet", "Fillet")
fillet.Base = (pocket2, edges_at(pocket2, [(0, 2, 125), (-140, 2, 125)]))
fillet.Radius = 10
doc.recompute()

fillet2 = body.newObject("PartDesign::Fillet", "Fillet001")
fillet2.Base = (fillet, edges_at(fillet, [(-140, 2, 65), (0, 2, 65)]))
fillet2.Radius = 5

doc.recompute()
